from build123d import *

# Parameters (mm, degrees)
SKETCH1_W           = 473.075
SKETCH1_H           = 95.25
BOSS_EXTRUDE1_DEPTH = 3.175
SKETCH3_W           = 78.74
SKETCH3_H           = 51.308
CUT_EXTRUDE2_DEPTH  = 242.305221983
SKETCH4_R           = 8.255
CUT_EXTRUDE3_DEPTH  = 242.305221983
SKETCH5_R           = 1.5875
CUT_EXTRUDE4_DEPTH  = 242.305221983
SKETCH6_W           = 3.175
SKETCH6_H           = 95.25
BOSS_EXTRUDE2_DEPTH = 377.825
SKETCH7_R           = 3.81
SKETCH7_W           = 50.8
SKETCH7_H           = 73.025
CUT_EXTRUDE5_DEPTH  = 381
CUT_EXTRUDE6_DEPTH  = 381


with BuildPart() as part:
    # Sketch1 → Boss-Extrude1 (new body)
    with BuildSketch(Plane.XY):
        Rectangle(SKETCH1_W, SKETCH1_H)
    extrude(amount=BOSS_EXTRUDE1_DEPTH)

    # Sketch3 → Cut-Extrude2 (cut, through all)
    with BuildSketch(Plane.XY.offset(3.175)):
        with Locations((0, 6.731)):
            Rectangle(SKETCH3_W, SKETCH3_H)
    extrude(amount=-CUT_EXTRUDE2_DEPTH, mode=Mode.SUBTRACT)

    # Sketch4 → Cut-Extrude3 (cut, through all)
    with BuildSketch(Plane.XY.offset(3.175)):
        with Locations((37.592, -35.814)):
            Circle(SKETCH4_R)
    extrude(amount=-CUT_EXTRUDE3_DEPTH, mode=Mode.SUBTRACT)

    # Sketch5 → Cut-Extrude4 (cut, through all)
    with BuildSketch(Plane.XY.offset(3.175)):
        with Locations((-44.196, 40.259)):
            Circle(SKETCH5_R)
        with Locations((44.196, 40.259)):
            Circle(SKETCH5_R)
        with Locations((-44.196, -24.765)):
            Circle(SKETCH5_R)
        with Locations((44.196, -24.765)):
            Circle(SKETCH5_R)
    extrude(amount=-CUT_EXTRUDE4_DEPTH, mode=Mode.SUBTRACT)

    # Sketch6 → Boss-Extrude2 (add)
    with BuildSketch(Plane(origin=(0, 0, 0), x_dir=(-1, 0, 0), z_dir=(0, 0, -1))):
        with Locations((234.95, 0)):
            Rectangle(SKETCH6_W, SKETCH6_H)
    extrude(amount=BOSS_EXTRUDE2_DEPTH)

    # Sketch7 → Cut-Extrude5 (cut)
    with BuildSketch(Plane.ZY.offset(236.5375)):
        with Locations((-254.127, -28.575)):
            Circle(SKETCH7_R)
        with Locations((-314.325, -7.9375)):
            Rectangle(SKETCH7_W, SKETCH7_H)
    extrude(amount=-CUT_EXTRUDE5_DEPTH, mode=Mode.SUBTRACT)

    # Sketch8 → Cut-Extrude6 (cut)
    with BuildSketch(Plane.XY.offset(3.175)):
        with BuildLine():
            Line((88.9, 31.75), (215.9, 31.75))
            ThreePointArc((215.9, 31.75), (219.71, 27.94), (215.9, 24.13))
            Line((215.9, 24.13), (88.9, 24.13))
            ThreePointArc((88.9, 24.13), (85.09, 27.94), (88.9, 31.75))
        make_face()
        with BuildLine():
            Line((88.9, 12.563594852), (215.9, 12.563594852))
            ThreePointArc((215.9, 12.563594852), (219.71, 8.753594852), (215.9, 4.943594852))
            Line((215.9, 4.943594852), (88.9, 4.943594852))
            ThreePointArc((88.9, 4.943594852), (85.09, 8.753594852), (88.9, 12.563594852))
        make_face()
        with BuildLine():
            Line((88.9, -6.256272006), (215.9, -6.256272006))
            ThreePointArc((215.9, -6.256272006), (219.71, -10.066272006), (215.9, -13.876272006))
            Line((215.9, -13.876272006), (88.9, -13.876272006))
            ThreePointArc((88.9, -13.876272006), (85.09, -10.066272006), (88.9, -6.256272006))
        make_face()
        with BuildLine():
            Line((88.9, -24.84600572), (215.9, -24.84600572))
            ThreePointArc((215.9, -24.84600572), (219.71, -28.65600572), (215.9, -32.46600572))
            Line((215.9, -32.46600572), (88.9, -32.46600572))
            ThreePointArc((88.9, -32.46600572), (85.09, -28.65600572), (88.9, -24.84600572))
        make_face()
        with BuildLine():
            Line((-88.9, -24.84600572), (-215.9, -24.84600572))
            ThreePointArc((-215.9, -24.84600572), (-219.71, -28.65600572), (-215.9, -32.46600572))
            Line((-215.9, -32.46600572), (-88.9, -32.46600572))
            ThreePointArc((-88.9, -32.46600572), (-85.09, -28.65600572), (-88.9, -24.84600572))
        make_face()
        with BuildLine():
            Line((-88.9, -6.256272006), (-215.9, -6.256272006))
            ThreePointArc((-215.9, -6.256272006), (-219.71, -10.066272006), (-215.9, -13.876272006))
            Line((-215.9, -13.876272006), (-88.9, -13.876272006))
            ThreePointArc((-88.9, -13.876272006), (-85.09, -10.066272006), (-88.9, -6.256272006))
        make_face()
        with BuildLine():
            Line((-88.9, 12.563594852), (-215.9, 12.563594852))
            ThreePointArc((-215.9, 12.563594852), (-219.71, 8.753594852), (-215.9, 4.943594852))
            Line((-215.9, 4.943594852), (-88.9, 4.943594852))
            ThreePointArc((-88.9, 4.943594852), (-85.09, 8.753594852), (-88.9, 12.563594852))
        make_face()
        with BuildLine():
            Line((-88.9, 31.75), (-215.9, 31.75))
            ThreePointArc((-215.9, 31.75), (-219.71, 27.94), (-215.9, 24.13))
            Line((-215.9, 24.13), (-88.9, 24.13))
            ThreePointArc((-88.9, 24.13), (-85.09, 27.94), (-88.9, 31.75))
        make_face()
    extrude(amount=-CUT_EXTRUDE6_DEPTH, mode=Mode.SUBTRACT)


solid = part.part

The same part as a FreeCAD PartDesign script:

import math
import FreeCAD as App
import Part
import Sketcher

V = App.Vector
Q = App.Units.Quantity

doc = App.newDocument("Part")
body = doc.addObject("PartDesign::Body", "Body")

# Sketch on XY plane
sketch1 = doc.addObject("Sketcher::SketchObject", "Sketch")
body.addObject(sketch1)
sketch1.AttachmentSupport = (doc.XY_Plane, [""])
sketch1.MapMode = "FlatFace"
sketch1.addGeometry([
    Part.LineSegment(V(-237, 48, 0), V(-237, -48, 0)),
    Part.LineSegment(V(-237, -48, 0), V(237, -48, 0)),
    Part.LineSegment(V(237, -48, 0), V(237, 48, 0)),
    Part.LineSegment(V(237, 48, 0), V(-237, 48, 0)),
], False)
sketch1.addConstraint([
    Sketcher.Constraint("Coincident", 0, 2, 1, 1),
    Sketcher.Constraint("Coincident", 1, 2, 2, 1),
    Sketcher.Constraint("Coincident", 2, 2, 3, 1),
    Sketcher.Constraint("Coincident", 3, 2, 0, 1),
    Sketcher.Constraint("Vertical", 0),
    Sketcher.Constraint("Horizontal", 1),
    Sketcher.Constraint("Vertical", 2),
    Sketcher.Constraint("Horizontal", 3),
    Sketcher.Constraint("Symmetric", 0, 2, 2, 2, -1, 1),
    Sketcher.Constraint("DistanceY", 0, 2, 0, 1, Q("3.75 in")),
    Sketcher.Constraint("DistanceX", 1, 1, 1, 2, Q("18.625 in")),
])
pad1 = doc.addObject("PartDesign::Pad", "Pad")
body.addObject(pad1)
pad1.Profile = sketch1
pad1.Length = Q("0.125 in")

# Sketch on XY plane
sketch2 = doc.addObject("Sketcher::SketchObject", "Sketch001")
body.addObject(sketch2)
sketch2.AttachmentSupport = (doc.XY_Plane, [""])
sketch2.MapMode = "FlatFace"
sketch2.AttachmentOffset = App.Placement(V(0, 0, 0.125 * 25.4), App.Rotation())
sketch2.addGeometry([
    Part.LineSegment(V(-39, 32, 0), V(-39, -19, 0)),
    Part.LineSegment(V(-39, -19, 0), V(39, -19, 0)),
    Part.LineSegment(V(39, -19, 0), V(39, 32, 0)),
    Part.LineSegment(V(39, 32, 0), V(-39, 32, 0)),
], False)
sketch2.addConstraint([
    Sketcher.Constraint("Coincident", 0, 2, 1, 1),
    Sketcher.Constraint("Coincident", 1, 2, 2, 1),
    Sketcher.Constraint("Coincident", 2, 2, 3, 1),
    Sketcher.Constraint("Coincident", 3, 2, 0, 1),
    Sketcher.Constraint("Vertical", 0),
    Sketcher.Constraint("Horizontal", 1),
    Sketcher.Constraint("Vertical", 2),
    Sketcher.Constraint("Horizontal", 3),
    Sketcher.Constraint("DistanceX", 1, 1, 1, 2, Q("3.1 in")),
    Sketcher.Constraint("DistanceY", 0, 2, 0, 1, Q("2.02 in")),
    Sketcher.Constraint("DistanceX", 0, 2, -1, 1, Q("1.55 in")),
    Sketcher.Constraint("DistanceY", 0, 2, -1, 1, Q("0.745 in")),
])
pocket1 = doc.addObject("PartDesign::Pocket", "Pocket")
body.addObject(pocket1)
pocket1.Profile = sketch2
pocket1.Type = "ThroughAll"

# Sketch on XY plane
sketch3 = doc.addObject("Sketcher::SketchObject", "Sketch002")
body.addObject(sketch3)
sketch3.AttachmentSupport = (doc.XY_Plane, [""])
sketch3.MapMode = "FlatFace"
sketch3.AttachmentOffset = App.Placement(V(0, 0, 0.125 * 25.4), App.Rotation())
sketch3.addGeometry(Part.Circle(V(38, -36, 0), V(0, 0, 1), 8), False)
sketch3.addConstraint([
    Sketcher.Constraint("Diameter", 0, Q("0.65 in")),
    Sketcher.Constraint("DistanceX", -1, 1, 0, 3, Q("1.48 in")),
    Sketcher.Constraint("DistanceY", 0, 3, -1, 1, Q("1.41 in")),
])
pocket2 = doc.addObject("PartDesign::Pocket", "Pocket001")
body.addObject(pocket2)
pocket2.Profile = sketch3
pocket2.Type = "ThroughAll"

# Sketch on XY plane
sketch4 = doc.addObject("Sketcher::SketchObject", "Sketch003")
body.addObject(sketch4)
sketch4.AttachmentSupport = (doc.XY_Plane, [""])
sketch4.MapMode = "FlatFace"
sketch4.AttachmentOffset = App.Placement(V(0, 0, 0.125 * 25.4), App.Rotation())
sketch4.addGeometry([
    Part.Circle(V(-44.2, 40.3, 0), V(0, 0, 1), 1.6),
    Part.Circle(V(44.2, 40.3, 0), V(0, 0, 1), 1.6),
    Part.Circle(V(-44.2, -24.8, 0), V(0, 0, 1), 1.6),
    Part.Circle(V(44.2, -24.8, 0), V(0, 0, 1), 1.6),
], False)
sketch4.addConstraint([
    Sketcher.Constraint("Equal", 0, 1),
    Sketcher.Constraint("Equal", 1, 2),
    Sketcher.Constraint("Equal", 2, 3),
    Sketcher.Constraint("Symmetric", 0, 3, 1, 3, -2),
    Sketcher.Constraint("Symmetric", 2, 3, 3, 3, -2),
    Sketcher.Constraint("Vertical", 0, 3, 2, 3),
    Sketcher.Constraint("Diameter", 0, Q("0.125 in")),
    Sketcher.Constraint("DistanceX", 0, 3, -1, 1, Q("1.74 in")),
    Sketcher.Constraint("DistanceY", 2, 3, 0, 3, Q("2.56 in")),
    Sketcher.Constraint("DistanceY", -1, 1, 0, 3, Q("1.585 in")),
])
pocket3 = doc.addObject("PartDesign::Pocket", "Pocket002")
body.addObject(pocket3)
pocket3.Profile = sketch4
pocket3.Type = "ThroughAll"

# Sketch on XY plane
sketch5 = doc.addObject("Sketcher::SketchObject", "Sketch004")
body.addObject(sketch5)
sketch5.AttachmentSupport = (doc.XY_Plane, [""])
sketch5.MapMode = "FlatFace"
sketch5.addGeometry([
    Part.LineSegment(V(-233.4, 47.6, 0), V(-233.4, -47.6, 0)),
    Part.LineSegment(V(-233.4, -47.6, 0), V(-236.5, -47.6, 0)),
    Part.LineSegment(V(-236.5, -47.6, 0), V(-236.5, 47.6, 0)),
    Part.LineSegment(V(-236.5, 47.6, 0), V(-233.4, 47.6, 0)),
], False)
sketch5.addConstraint([
    Sketcher.Constraint("Coincident", 0, 2, 1, 1),
    Sketcher.Constraint("Coincident", 1, 2, 2, 1),
    Sketcher.Constraint("Coincident", 2, 2, 3, 1),
    Sketcher.Constraint("Coincident", 3, 2, 0, 1),
    Sketcher.Constraint("Vertical", 0),
    Sketcher.Constraint("Horizontal", 1),
    Sketcher.Constraint("Vertical", 2),
    Sketcher.Constraint("Horizontal", 3),
    Sketcher.Constraint("DistanceY", 0, 2, 0, 1, Q("3.75 in")),
    Sketcher.Constraint("DistanceX", 1, 2, 1, 1, Q("0.125 in")),
    Sketcher.Constraint("DistanceX", 0, 2, -1, 1, Q("9.1875 in")),
    Sketcher.Constraint("DistanceY", 0, 2, -1, 1, Q("1.875 in")),
])
pad2 = doc.addObject("PartDesign::Pad", "Pad001")
body.addObject(pad2)
pad2.Profile = sketch5
pad2.Length = Q("14.875 in")
pad2.Reversed = True

# Sketch on YZ plane
sketch6 = doc.addObject("Sketcher::SketchObject", "Sketch005")
body.addObject(sketch6)
sketch6.AttachmentSupport = (doc.YZ_Plane, [""])
sketch6.MapMode = "FlatFace"
sketch6.AttachmentOffset = App.Placement(V(0, 0, -9.3125 * 25.4), App.Rotation())
sketch6.addGeometry([
    Part.Circle(V(-28.6, -254.1, 0), V(0, 0, 1), 3.8),  # 0
    Part.LineSegment(V(28.6, -339.7, 0), V(-44.5, -339.7, 0)),  # 1
    Part.LineSegment(V(-44.5, -339.7, 0), V(-44.5, -288.9, 0)),  # 2
    Part.LineSegment(V(-44.5, -288.9, 0), V(28.6, -288.9, 0)),  # 3
    Part.LineSegment(V(28.6, -288.9, 0), V(28.6, -339.7, 0)),  # 4
], False)
sketch6.addConstraint([
    Sketcher.Constraint("Coincident", 1, 2, 2, 1),
    Sketcher.Constraint("Coincident", 2, 2, 3, 1),
    Sketcher.Constraint("Coincident", 3, 2, 4, 1),
    Sketcher.Constraint("Coincident", 4, 2, 1, 1),
    Sketcher.Constraint("Horizontal", 1),
    Sketcher.Constraint("Vertical", 2),
    Sketcher.Constraint("Horizontal", 3),
    Sketcher.Constraint("Vertical", 4),
    Sketcher.Constraint("Diameter", 0, Q("0.3 in")),
    Sketcher.Constraint("DistanceY", 2, 1, 2, 2, Q("2 in")),
    Sketcher.Constraint("DistanceX", 1, 2, 1, 1, Q("2.875 in")),
    Sketcher.Constraint("DistanceX", 1, 2, -1, 1, Q("1.75 in")),
    Sketcher.Constraint("DistanceY", 1, 2, 0, 3, Q("3.37 in")),
    Sketcher.Constraint("DistanceX", 0, 3, 3, 2, Q("2.25 in")),
    Sketcher.Constraint("DistanceY", 0, 3, -1, 1, Q("10.005 in")),
])
pocket4 = doc.addObject("PartDesign::Pocket", "Pocket003")
body.addObject(pocket4)
pocket4.Profile = sketch6
pocket4.Length = Q("15 in")
pocket4.Reversed = True

# Sketch on XY plane
sketch7 = doc.addObject("Sketcher::SketchObject", "Sketch006")
body.addObject(sketch7)
sketch7.AttachmentSupport = (doc.XY_Plane, [""])
sketch7.MapMode = "FlatFace"
sketch7.AttachmentOffset = App.Placement(V(0, 0, 0.125 * 25.4), App.Rotation())
sketch7.addGeometry([
    Part.LineSegment(V(215.9, 31.8, 0), V(88.9, 31.8, 0)),  # 0
    Part.ArcOfCircle(Part.Circle(V(88.9, 27.9, 0), V(0, 0, 1), 3.8), math.radians(90), math.radians(270)),  # 1
    Part.LineSegment(V(88.9, 24.1, 0), V(215.9, 24.1, 0)),  # 2
    Part.ArcOfCircle(Part.Circle(V(215.9, 27.9, 0), V(0, 0, 1), 3.8), math.radians(-90), math.radians(90)),  # 3
    Part.LineSegment(V(215.9, 12.6, 0), V(88.9, 12.6, 0)),  # 4
    Part.ArcOfCircle(Part.Circle(V(88.9, 8.8, 0), V(0, 0, 1), 3.8), math.radians(90), math.radians(270)),  # 5
    Part.LineSegment(V(88.9, 4.9, 0), V(215.9, 4.9, 0)),  # 6
    Part.ArcOfCircle(Part.Circle(V(215.9, 8.8, 0), V(0, 0, 1), 3.8), math.radians(-90), math.radians(90)),  # 7
    Part.LineSegment(V(215.9, -6.3, 0), V(88.9, -6.3, 0)),  # 8
    Part.ArcOfCircle(Part.Circle(V(88.9, -10.1, 0), V(0, 0, 1), 3.8), math.radians(90), math.radians(270)),  # 9
    Part.LineSegment(V(88.9, -13.9, 0), V(215.9, -13.9, 0)),  # 10
    Part.ArcOfCircle(Part.Circle(V(215.9, -10.1, 0), V(0, 0, 1), 3.8), math.radians(-90), math.radians(90)),  # 11
    Part.LineSegment(V(215.9, -24.8, 0), V(88.9, -24.8, 0)),  # 12
    Part.ArcOfCircle(Part.Circle(V(88.9, -28.7, 0), V(0, 0, 1), 3.8), math.radians(90), math.radians(270)),  # 13
    Part.LineSegment(V(88.9, -32.5, 0), V(215.9, -32.5, 0)),  # 14
    Part.ArcOfCircle(Part.Circle(V(215.9, -28.7, 0), V(0, 0, 1), 3.8), math.radians(-90), math.radians(90)),  # 15
    Part.LineSegment(V(-88.9, -24.8, 0), V(-215.9, -24.8, 0)),  # 16
    Part.ArcOfCircle(Part.Circle(V(-215.9, -28.7, 0), V(0, 0, 1), 3.8), math.radians(90), math.radians(270)),  # 17
    Part.LineSegment(V(-215.9, -32.5, 0), V(-88.9, -32.5, 0)),  # 18
    Part.ArcOfCircle(Part.Circle(V(-88.9, -28.7, 0), V(0, 0, 1), 3.8), math.radians(-90), math.radians(90)),  # 19
    Part.LineSegment(V(-88.9, -6.3, 0), V(-215.9, -6.3, 0)),  # 20
    Part.ArcOfCircle(Part.Circle(V(-215.9, -10.1, 0), V(0, 0, 1), 3.8), math.radians(90), math.radians(270)),  # 21
    Part.LineSegment(V(-215.9, -13.9, 0), V(-88.9, -13.9, 0)),  # 22
    Part.ArcOfCircle(Part.Circle(V(-88.9, -10.1, 0), V(0, 0, 1), 3.8), math.radians(-90), math.radians(90)),  # 23
    Part.LineSegment(V(-88.9, 12.6, 0), V(-215.9, 12.6, 0)),  # 24
    Part.ArcOfCircle(Part.Circle(V(-215.9, 8.8, 0), V(0, 0, 1), 3.8), math.radians(90), math.radians(270)),  # 25
    Part.LineSegment(V(-215.9, 4.9, 0), V(-88.9, 4.9, 0)),  # 26
    Part.ArcOfCircle(Part.Circle(V(-88.9, 8.8, 0), V(0, 0, 1), 3.8), math.radians(-90), math.radians(90)),  # 27
    Part.LineSegment(V(-88.9, 31.8, 0), V(-215.9, 31.8, 0)),  # 28
    Part.ArcOfCircle(Part.Circle(V(-215.9, 27.9, 0), V(0, 0, 1), 3.8), math.radians(90), math.radians(270)),  # 29
    Part.LineSegment(V(-215.9, 24.1, 0), V(-88.9, 24.1, 0)),  # 30
    Part.ArcOfCircle(Part.Circle(V(-88.9, 27.9, 0), V(0, 0, 1), 3.8), math.radians(-90), math.radians(90)),  # 31
], False)
sketch7.addConstraint([
    Sketcher.Constraint("Tangent", 0, 2, 1, 1),
    Sketcher.Constraint("Tangent", 1, 2, 2, 1),
    Sketcher.Constraint("Tangent", 2, 2, 3, 1),
    Sketcher.Constraint("Tangent", 3, 2, 0, 1),
    Sketcher.Constraint("Tangent", 4, 2, 5, 1),
    Sketcher.Constraint("Tangent", 5, 2, 6, 1),
    Sketcher.Constraint("Tangent", 6, 2, 7, 1),
    Sketcher.Constraint("Tangent", 7, 2, 4, 1),
    Sketcher.Constraint("Tangent", 8, 2, 9, 1),
    Sketcher.Constraint("Tangent", 9, 2, 10, 1),
    Sketcher.Constraint("Tangent", 10, 2, 11, 1),
    Sketcher.Constraint("Tangent", 11, 2, 8, 1),
    Sketcher.Constraint("Tangent", 12, 2, 13, 1),
    Sketcher.Constraint("Tangent", 13, 2, 14, 1),
    Sketcher.Constraint("Tangent", 14, 2, 15, 1),
    Sketcher.Constraint("Tangent", 15, 2, 12, 1),
    Sketcher.Constraint("Tangent", 16, 2, 17, 1),
    Sketcher.Constraint("Tangent", 17, 2, 18, 1),
    Sketcher.Constraint("Tangent", 18, 2, 19, 1),
    Sketcher.Constraint("Tangent", 19, 2, 16, 1),
    Sketcher.Constraint("Tangent", 20, 2, 21, 1),
    Sketcher.Constraint("Tangent", 21, 2, 22, 1),
    Sketcher.Constraint("Tangent", 22, 2, 23, 1),
    Sketcher.Constraint("Tangent", 23, 2, 20, 1),
    Sketcher.Constraint("Tangent", 24, 2, 25, 1),
    Sketcher.Constraint("Tangent", 25, 2, 26, 1),
    Sketcher.Constraint("Tangent", 26, 2, 27, 1),
    Sketcher.Constraint("Tangent", 27, 2, 24, 1),
    Sketcher.Constraint("Tangent", 28, 2, 29, 1),
    Sketcher.Constraint("Tangent", 29, 2, 30, 1),
    Sketcher.Constraint("Tangent", 30, 2, 31, 1),
    Sketcher.Constraint("Tangent", 31, 2, 28, 1),
    Sketcher.Constraint("Horizontal", 0),
    Sketcher.Constraint("Horizontal", 2),
    Sketcher.Constraint("Horizontal", 4),
    Sketcher.Constraint("Horizontal", 6),
    Sketcher.Constraint("Horizontal", 8),
    Sketcher.Constraint("Horizontal", 10),
    Sketcher.Constraint("Horizontal", 12),
    Sketcher.Constraint("Horizontal", 14),
    Sketcher.Constraint("Horizontal", 16),
    Sketcher.Constraint("Horizontal", 18),
    Sketcher.Constraint("Horizontal", 20),
    Sketcher.Constraint("Horizontal", 22),
    Sketcher.Constraint("Horizontal", 24),
    Sketcher.Constraint("Horizontal", 26),
    Sketcher.Constraint("Horizontal", 28),
    Sketcher.Constraint("Horizontal", 30),
    Sketcher.Constraint("Equal", 3, 5),
    Sketcher.Constraint("Equal", 7, 9),
    Sketcher.Constraint("Equal", 11, 13),
    Sketcher.Constraint("Equal", 15, 17),
    Sketcher.Constraint("Equal", 19, 21),
    Sketcher.Constraint("Equal", 23, 25),
    Sketcher.Constraint("Equal", 27, 29),
    Sketcher.Constraint("Symmetric", 15, 3, 17, 3, -2),
    Sketcher.Constraint("Symmetric", 11, 3, 21, 3, -2),
    Sketcher.Constraint("Symmetric", 7, 3, 25, 3, -2),
    Sketcher.Constraint("Symmetric", 3, 3, 29, 3, -2),
    Sketcher.Constraint("Vertical", 1, 3, 5, 3),
    Sketcher.Constraint("Vertical", 3, 3, 7, 3),
    Sketcher.Constraint("Vertical", 5, 3, 9, 3),
    Sketcher.Constraint("Vertical", 7, 3, 11, 3),
    Sketcher.Constraint("Vertical", 9, 3, 13, 3),
    Sketcher.Constraint("Vertical", 11, 3, 15, 3),
    Sketcher.Constraint("Vertical", 19, 3, 23, 3),
    Sketcher.Constraint("Vertical", 23, 3, 27, 3),
    Sketcher.Constraint("Vertical", 27, 3, 31, 3),
    Sketcher.Constraint("Equal", 14, 16),
    Sketcher.Constraint("DistanceX", 0, 2, 0, 1, Q("5 in")),
    Sketcher.Constraint("Radius", 1, Q("0.15 in")),
    Sketcher.Constraint("DistanceX", 17, 3, 13, 3, Q("12 in")),
    Sketcher.Constraint("DistanceY", -1, 1, 1, 3, Q("1.1 in")),
    Sketcher.Constraint("DistanceY", 13, 3, 5, 3, Q("37.409601 mm")),
    Sketcher.Constraint("DistanceY", -1, 1, 5, 3, Q("8.753595 mm")),
    Sketcher.Constraint("DistanceY", 9, 3, -1, 1, Q("10.066272 mm")),
])
pocket5 = doc.addObject("PartDesign::Pocket", "Pocket004")
body.addObject(pocket5)
pocket5.Profile = sketch7
pocket5.Length = Q("15 in")

doc.recompute()
